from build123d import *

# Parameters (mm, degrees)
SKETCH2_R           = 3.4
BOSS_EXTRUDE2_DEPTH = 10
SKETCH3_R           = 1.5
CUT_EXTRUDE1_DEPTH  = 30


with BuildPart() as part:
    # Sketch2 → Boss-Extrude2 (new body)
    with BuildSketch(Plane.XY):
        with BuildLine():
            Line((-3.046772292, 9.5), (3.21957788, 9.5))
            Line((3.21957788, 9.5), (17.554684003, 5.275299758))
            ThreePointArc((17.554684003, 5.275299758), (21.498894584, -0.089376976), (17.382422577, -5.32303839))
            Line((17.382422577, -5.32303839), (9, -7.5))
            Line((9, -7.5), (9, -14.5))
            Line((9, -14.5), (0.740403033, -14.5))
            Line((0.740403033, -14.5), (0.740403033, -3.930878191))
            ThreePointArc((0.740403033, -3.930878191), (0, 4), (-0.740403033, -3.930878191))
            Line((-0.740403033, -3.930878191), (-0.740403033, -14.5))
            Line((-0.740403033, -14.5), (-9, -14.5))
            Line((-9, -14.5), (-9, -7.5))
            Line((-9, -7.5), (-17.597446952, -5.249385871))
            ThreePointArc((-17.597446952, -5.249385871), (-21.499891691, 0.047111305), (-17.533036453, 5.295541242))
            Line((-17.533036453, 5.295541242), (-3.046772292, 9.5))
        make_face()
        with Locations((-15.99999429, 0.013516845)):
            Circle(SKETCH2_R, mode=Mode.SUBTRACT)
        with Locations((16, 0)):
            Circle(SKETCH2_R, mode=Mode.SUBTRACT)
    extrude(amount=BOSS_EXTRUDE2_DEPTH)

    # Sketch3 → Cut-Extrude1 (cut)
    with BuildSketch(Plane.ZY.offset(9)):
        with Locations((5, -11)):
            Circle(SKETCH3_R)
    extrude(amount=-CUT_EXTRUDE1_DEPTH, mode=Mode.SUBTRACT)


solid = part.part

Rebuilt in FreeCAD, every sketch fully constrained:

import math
import FreeCAD as App
import Part
import Sketcher

V = App.Vector
Q = App.Units.Quantity

doc = App.newDocument("Part")
body = doc.addObject("PartDesign::Body", "Body")

# Sketch on XY plane
sketch1 = body.newObject("Sketcher::SketchObject", "Sketch")
sketch1.AttachmentSupport = (doc.getObject("XY_Plane"), [""])
sketch1.MapMode = "FlatFace"
sketch1.addGeometry(Part.LineSegment(V(3.219578, 9.5, 0), V(-3.046772, 9.5, 0)), False)
sketch1.addGeometry(Part.LineSegment(V(-3.046772, 9.5, 0), V(-17.533036, 5.295541, 0)), False)
sketch1.addGeometry(Part.ArcOfCircle(Part.Circle(V(-15.999994, 0.013517, 0), V(0, 0, 1), 5.5), math.radians(106.184716), math.radians(253.115344)), False)
sketch1.addGeometry(Part.LineSegment(V(-17.597447, -5.249386, 0), V(-9, -7.5, 0)), False)
sketch1.addGeometry(Part.LineSegment(V(-9, -7.5, 0), V(-9, -14.5, 0)), False)
sketch1.addGeometry(Part.LineSegment(V(-9, -14.5, 0), V(-0.740403, -14.5, 0)), False)
sketch1.addGeometry(Part.LineSegment(V(-0.740403, -14.5, 0), V(-0.740403, -3.930878, 0)), False)
sketch1.addGeometry(Part.ArcOfCircle(Part.Circle(V(0, 0, 0), V(0, 0, 1), 4), math.radians(-79.332993), math.radians(259.332993)), False)
sketch1.addGeometry(Part.LineSegment(V(0.740403, -3.930878, 0), V(0.740403, -14.5, 0)), False)
sketch1.addGeometry(Part.LineSegment(V(0.740403, -14.5, 0), V(9, -14.5, 0)), False)
sketch1.addGeometry(Part.LineSegment(V(9, -14.5, 0), V(9, -7.5, 0)), False)
sketch1.addGeometry(Part.LineSegment(V(9, -7.5, 0), V(17.382423, -5.323038, 0)), False)
sketch1.addGeometry(Part.ArcOfCircle(Part.Circle(V(16, 0, 0), V(0, 0, 1), 5.499621), math.radians(-75.441588), math.radians(73.579223)), False)
sketch1.addGeometry(Part.LineSegment(V(17.554684, 5.2753, 0), V(3.219578, 9.5, 0)), False)
sketch1.addGeometry(Part.Circle(V(16, 0, 0), V(0, 0, 1), 3.4), False)
sketch1.addGeometry(Part.Circle(V(-15.999994, 0.013517, 0), V(0, 0, 1), 3.4), False)
sketch1.addConstraint(Sketcher.Constraint("Coincident", 0, 2, 1, 1))
sketch1.addConstraint(Sketcher.Constraint("Tangent", 1, 2, 2, 1))
sketch1.addConstraint(Sketcher.Constraint("Coincident", 2, 2, 3, 1))
sketch1.addConstraint(Sketcher.Constraint("Coincident", 3, 2, 4, 1))
sketch1.addConstraint(Sketcher.Constraint("Coincident", 4, 2, 5, 1))
sketch1.addConstraint(Sketcher.Constraint("Coincident", 5, 2, 6, 1))
sketch1.addConstraint(Sketcher.Constraint("Coincident", 6, 2, 7, 2))
sketch1.addConstraint(Sketcher.Constraint("Coincident", 7, 1, 8, 1))
sketch1.addConstraint(Sketcher.Constraint("Coincident", 8, 2, 9, 1))
sketch1.addConstraint(Sketcher.Constraint("Coincident", 9, 2, 10, 1))
sketch1.addConstraint(Sketcher.Constraint("Coincident", 10, 2, 11, 1))
sketch1.addConstraint(Sketcher.Constraint("Tangent", 11, 2, 12, 1))
sketch1.addConstraint(Sketcher.Constraint("Tangent", 12, 2, 13, 1))
sketch1.addConstraint(Sketcher.Constraint("Coincident", 13, 2, 0, 1))
sketch1.addConstraint(Sketcher.Constraint("Horizontal", 0))
sketch1.addConstraint(Sketcher.Constraint("Vertical", 4))
sketch1.addConstraint(Sketcher.Constraint("Horizontal", 5))
sketch1.addConstraint(Sketcher.Constraint("Vertical", 6))
sketch1.addConstraint(Sketcher.Constraint("Vertical", 8))
sketch1.addConstraint(Sketcher.Constraint("Horizontal", 9))
sketch1.addConstraint(Sketcher.Constraint("Vertical", 10))
sketch1.addConstraint(Sketcher.Constraint("Coincident", 7, 3, -1, 1))
sketch1.addConstraint(Sketcher.Constraint("Coincident", 14, 3, 12, 3))
sketch1.addConstraint(Sketcher.Constraint("Coincident", 15, 3, 2, 3))
sketch1.addConstraint(Sketcher.Constraint("Equal", 14, 15))
sketch1.addConstraint(Sketcher.Constraint("Symmetric", 5, 2, 8, 2, -2))
sketch1.addConstraint(Sketcher.Constraint("Symmetric", 3, 2, 10, 2, -2))
sketch1.addConstraint(Sketcher.Constraint("PointOnObject", 12, 3, -1))
sketch1.addConstraint(Sketcher.Constraint("Radius", 7, Q("4 mm")))
sketch1.addConstraint(Sketcher.Constraint("Diameter", 14, Q("6.8 mm")))
sketch1.addConstraint(Sketcher.Constraint("Radius", 2, Q("5.5 mm")))
sketch1.addConstraint(Sketcher.Constraint("DistanceY", 4, 2, 4, 1, Q("7 mm")))
sketch1.addConstraint(Sketcher.Constraint("DistanceX", -1, 1, 12, 3, Q("16 mm")))
sketch1.addConstraint(Sketcher.Constraint("DistanceX", 3, 2, -1, 1, Q("9 mm")))
sketch1.addConstraint(Sketcher.Constraint("DistanceY", -1, 1, 0, 2, Q("9.5 mm")))
sketch1.addConstraint(Sketcher.Constraint("DistanceY", 3, 2, -1, 1, Q("7.5 mm")))
sketch1.addConstraint(Sketcher.Constraint("Radius", 12, Q("5.499621 mm")))
sketch1.addConstraint(Sketcher.Constraint("DistanceX", 0, 2, 0, 1, Q("6.26635 mm")))
sketch1.addConstraint(Sketcher.Constraint("DistanceY", 6, 1, 6, 2, Q("10.569122 mm")))
sketch1.addConstraint(Sketcher.Constraint("DistanceY", -1, 1, 12, 2, Q("5.2753 mm")))
sketch1.addConstraint(Sketcher.Constraint("DistanceY", -1, 1, 1, 2, Q("5.295541 mm")))
sketch1.addConstraint(Sketcher.Constraint("DistanceX", 15, 3, 0, 2, Q("12.953222 mm")))
sketch1.addConstraint(Sketcher.Constraint("DistanceX", 2, 2, 1, 2, Q("0.06441 mm")))
pad1 = body.newObject("PartDesign::Pad", "Pad")
pad1.Profile = sketch1
pad1.Length = 10

# Sketch on YZ plane
sketch2 = body.newObject("Sketcher::SketchObject", "Sketch001")
sketch2.AttachmentSupport = (doc.getObject("YZ_Plane"), [""])
sketch2.MapMode = "FlatFace"
sketch2.AttachmentOffset = App.Placement(V(0, 0, -9), App.Rotation())
sketch2.addGeometry(Part.Circle(V(-11, 5, 0), V(0, 0, 1), 1.5), False)
sketch2.addConstraint(Sketcher.Constraint("Diameter", 0, Q("3 mm")))
sketch2.addConstraint(Sketcher.Constraint("DistanceX", 0, 3, -1, 1, Q("11 mm")))
sketch2.addConstraint(Sketcher.Constraint("DistanceY", -1, 1, 0, 3, Q("5 mm")))
pocket1 = body.newObject("PartDesign::Pocket", "Pocket")
pocket1.Profile = sketch2
pocket1.Length = 30
pocket1.Reversed = True

doc.recompute()
